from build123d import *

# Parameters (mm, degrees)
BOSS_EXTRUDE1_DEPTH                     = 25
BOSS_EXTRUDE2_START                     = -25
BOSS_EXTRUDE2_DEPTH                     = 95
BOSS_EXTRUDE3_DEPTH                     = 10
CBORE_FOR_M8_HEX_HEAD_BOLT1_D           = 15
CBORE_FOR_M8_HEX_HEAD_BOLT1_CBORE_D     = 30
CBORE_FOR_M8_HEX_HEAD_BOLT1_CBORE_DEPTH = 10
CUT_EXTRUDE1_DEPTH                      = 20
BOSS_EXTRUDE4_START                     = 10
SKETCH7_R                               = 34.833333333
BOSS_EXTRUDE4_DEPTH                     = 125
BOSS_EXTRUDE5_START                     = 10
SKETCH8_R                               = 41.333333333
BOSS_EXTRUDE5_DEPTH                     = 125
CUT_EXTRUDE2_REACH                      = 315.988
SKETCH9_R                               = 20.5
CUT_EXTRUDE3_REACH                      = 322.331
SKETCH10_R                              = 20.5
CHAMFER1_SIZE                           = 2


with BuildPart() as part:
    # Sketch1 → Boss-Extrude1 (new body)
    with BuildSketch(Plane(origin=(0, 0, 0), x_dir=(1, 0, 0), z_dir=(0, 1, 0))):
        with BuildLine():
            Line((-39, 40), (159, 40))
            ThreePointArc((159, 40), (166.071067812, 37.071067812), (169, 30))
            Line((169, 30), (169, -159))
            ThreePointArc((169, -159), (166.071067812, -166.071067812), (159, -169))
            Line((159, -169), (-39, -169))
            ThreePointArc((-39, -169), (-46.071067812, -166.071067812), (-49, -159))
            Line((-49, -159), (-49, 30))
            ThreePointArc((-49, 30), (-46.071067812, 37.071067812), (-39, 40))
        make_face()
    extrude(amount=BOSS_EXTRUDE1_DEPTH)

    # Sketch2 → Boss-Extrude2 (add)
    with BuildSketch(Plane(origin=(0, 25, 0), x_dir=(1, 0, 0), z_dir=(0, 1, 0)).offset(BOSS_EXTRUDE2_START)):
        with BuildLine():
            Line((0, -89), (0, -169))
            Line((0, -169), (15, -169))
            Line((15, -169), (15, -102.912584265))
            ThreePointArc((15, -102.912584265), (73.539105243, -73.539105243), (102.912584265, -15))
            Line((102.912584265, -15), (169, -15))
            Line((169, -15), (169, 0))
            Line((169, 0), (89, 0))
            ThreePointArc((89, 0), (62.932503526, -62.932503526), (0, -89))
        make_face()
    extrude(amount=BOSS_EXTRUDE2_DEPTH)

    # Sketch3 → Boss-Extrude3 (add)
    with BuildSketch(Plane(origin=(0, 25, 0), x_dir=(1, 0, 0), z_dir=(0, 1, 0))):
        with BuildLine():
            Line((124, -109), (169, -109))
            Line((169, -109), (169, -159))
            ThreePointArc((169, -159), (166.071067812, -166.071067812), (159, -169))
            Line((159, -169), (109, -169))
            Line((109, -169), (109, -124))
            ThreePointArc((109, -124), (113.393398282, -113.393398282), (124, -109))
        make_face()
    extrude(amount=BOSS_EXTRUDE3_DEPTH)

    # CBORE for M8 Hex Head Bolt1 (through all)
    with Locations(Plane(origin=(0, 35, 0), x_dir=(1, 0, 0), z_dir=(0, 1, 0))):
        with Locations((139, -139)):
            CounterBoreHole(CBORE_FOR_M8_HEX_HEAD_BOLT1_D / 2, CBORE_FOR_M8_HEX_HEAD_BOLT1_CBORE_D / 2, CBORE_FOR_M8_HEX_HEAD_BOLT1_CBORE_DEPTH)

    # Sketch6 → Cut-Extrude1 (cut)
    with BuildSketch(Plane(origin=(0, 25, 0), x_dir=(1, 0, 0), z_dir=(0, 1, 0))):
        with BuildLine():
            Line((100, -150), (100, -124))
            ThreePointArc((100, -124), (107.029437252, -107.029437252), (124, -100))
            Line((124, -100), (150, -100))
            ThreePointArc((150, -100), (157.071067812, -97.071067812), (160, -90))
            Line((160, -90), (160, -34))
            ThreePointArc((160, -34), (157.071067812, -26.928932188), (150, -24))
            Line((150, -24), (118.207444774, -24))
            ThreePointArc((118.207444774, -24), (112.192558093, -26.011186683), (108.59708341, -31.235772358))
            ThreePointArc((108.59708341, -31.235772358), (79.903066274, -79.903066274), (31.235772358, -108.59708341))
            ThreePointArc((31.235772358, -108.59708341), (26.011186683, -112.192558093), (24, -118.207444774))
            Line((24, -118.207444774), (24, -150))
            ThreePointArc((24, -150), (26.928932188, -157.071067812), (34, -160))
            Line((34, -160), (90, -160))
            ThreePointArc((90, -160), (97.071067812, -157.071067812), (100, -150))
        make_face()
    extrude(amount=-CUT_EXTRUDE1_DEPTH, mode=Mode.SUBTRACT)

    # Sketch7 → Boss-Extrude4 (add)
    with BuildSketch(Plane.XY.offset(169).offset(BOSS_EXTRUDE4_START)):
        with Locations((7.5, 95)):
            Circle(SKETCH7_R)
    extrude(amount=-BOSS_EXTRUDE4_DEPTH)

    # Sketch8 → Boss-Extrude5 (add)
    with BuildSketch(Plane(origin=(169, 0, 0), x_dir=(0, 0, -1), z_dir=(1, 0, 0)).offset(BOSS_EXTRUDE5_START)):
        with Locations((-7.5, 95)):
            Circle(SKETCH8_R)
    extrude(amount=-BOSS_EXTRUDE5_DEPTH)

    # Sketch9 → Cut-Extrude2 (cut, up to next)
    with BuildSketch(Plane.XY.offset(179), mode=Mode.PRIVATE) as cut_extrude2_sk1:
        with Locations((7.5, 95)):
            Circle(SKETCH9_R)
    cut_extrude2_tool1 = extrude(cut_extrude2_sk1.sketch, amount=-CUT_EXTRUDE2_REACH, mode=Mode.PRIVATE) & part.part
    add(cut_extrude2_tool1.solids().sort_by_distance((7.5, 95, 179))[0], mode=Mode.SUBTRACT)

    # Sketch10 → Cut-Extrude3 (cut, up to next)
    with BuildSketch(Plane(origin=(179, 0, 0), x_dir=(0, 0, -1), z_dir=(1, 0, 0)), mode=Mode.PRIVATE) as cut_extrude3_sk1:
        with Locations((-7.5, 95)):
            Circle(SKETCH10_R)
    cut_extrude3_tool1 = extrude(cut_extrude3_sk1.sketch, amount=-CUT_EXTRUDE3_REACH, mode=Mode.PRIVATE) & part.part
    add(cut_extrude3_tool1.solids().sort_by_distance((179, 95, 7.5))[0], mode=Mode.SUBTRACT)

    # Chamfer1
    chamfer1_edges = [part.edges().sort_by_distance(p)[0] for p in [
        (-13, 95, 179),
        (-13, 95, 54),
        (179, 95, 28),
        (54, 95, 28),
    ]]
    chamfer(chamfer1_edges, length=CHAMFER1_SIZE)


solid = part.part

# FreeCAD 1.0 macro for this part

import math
import FreeCAD as App
import Part
import Sketcher
from FreeCAD import Vector


def edges_at(feature, points):
    """Names of the edges that pass closest to the given points."""
    edges = feature.Shape.Edges
    near = lambda p: min(range(len(edges)), key=lambda i: edges[i].distToShape(Part.Vertex(*p))[0])
    return sorted({f"Edge{near(p) + 1}" for p in points})

doc = App.newDocument("Part")
params = doc.addObject("Spreadsheet::Sheet", "Params")
for row, (alias, value) in enumerate([
    ("sketch1_radius", "10 mm"),
    ("sketch1_width", "198 mm"),
    ("sketch1_height", "189 mm"),
    ("pad1_length", "25 mm"),
    ("sketch2_radius", "104 mm"),
    ("sketch2_radius2", "89 mm"),
    ("sketch2_width", "15 mm"),
    ("sketch2_width2", "80 mm"),
    ("pad2_length", "95 mm"),
    ("sketch3_radius", "15 mm"),
    ("sketch3_radius2", "10 mm"),
    ("sketch3_width", "45 mm"),
    ("pad3_length", "10 mm"),
    ("sketch4_diameter", "15 mm"),
    ("hole_diameter", "15 mm"),
    ("hole_cbore_diameter", "30 mm"),
    ("hole_cbore_depth", "10 mm"),
    ("sketch5_radius", "24 mm"),
    ("sketch5_radius2", "10 mm"),
    ("sketch5_radius3", "113 mm"),
    ("sketch5_width", "26 mm"),
    ("sketch5_width2", "56 mm"),
    ("pocket1_length", "20 mm"),
    ("pad4_length", "125 mm"),
    ("pad5_length", "125 mm"),
    ("sketch8_diameter", "41 mm"),
    ("sketch9_diameter", "41 mm"),
    ("chamfer_size", "2 mm"),
], start=1):
    params.set(f"A{row}", alias)
    params.set(f"B{row}", "=" + value)
    params.setAlias(f"B{row}", alias)

body = doc.addObject("PartDesign::Body", "Body")

# Sketch on XZ plane
sketch1 = doc.addObject("Sketcher::SketchObject", "Sketch")
body.addObject(sketch1)
sketch1.AttachmentSupport = (doc.XZ_Plane, [""])
sketch1.MapMode = "FlatFace"
sketch1.addGeometry([
    Part.LineSegment(Vector(159, -40, 0), Vector(-39, -40, 0)),  # 0
    Part.ArcOfCircle(Part.Circle(Vector(-39, -30, 0), Vector(0, 0, 1), 10), math.radians(180), math.radians(270)),  # 1
    Part.LineSegment(Vector(-49, -30, 0), Vector(-49, 159, 0)),  # 2
    Part.ArcOfCircle(Part.Circle(Vector(-39, 159, 0), Vector(0, 0, 1), 10), math.radians(90), math.radians(180)),  # 3
    Part.LineSegment(Vector(-39, 169, 0), Vector(159, 169, 0)),  # 4
    Part.ArcOfCircle(Part.Circle(Vector(159, 159, 0), Vector(0, 0, 1), 10), math.radians(0), math.radians(90)),  # 5
    Part.LineSegment(Vector(169, 159, 0), Vector(169, -30, 0)),  # 6
    Part.ArcOfCircle(Part.Circle(Vector(159, -30, 0), Vector(0, 0, 1), 10), math.radians(-90), math.radians(0)),  # 7
], False)
sketch1.addConstraint([
    Sketcher.Constraint("Tangent", 0, 2, 1, 2),
    Sketcher.Constraint("Tangent", 1, 1, 2, 1),
    Sketcher.Constraint("Tangent", 2, 2, 3, 2),
    Sketcher.Constraint("Tangent", 3, 1, 4, 1),
    Sketcher.Constraint("Tangent", 4, 2, 5, 2),
    Sketcher.Constraint("Tangent", 5, 1, 6, 1),
    Sketcher.Constraint("Tangent", 6, 2, 7, 2),
    Sketcher.Constraint("Tangent", 7, 1, 0, 1),
    Sketcher.Constraint("Horizontal", 0),
    Sketcher.Constraint("Vertical", 2),
    Sketcher.Constraint("Horizontal", 4),
    Sketcher.Constraint("Vertical", 6),
    Sketcher.Constraint("Equal", 1, 3),
    Sketcher.Constraint("Equal", 3, 5),
    Sketcher.Constraint("Equal", 5, 7),
    Sketcher.Constraint("Radius", 1, 10.0),
    Sketcher.Constraint("DistanceX", 0, 2, 0, 1, 198.0),
    Sketcher.Constraint("DistanceY", 2, 1, 2, 2, 189.0),
    Sketcher.Constraint("DistanceX", 1, 3, -1, 1, 39.0),
    Sketcher.Constraint("DistanceY", 1, 3, -1, 1, 30.0),
])
sketch1.setExpression("Constraints[15]", "Params.sketch1_radius")
sketch1.setExpression("Constraints[16]", "Params.sketch1_width")
sketch1.setExpression("Constraints[17]", "Params.sketch1_height")
pad1 = doc.addObject("PartDesign::Pad", "Pad")
body.addObject(pad1)
pad1.Profile = sketch1
pad1.setExpression("Length", "Params.pad1_length")
pad1.Reversed = True

# Sketch on XZ plane
sketch2 = doc.addObject("Sketcher::SketchObject", "Sketch001")
body.addObject(sketch2)
sketch2.AttachmentSupport = (doc.XZ_Plane, [""])
sketch2.MapMode = "FlatFace"
sketch2.addGeometry([
    Part.LineSegment(Vector(0, 89, 0), Vector(0, 169, 0)),  # 0
    Part.LineSegment(Vector(0, 169, 0), Vector(15, 169, 0)),  # 1
    Part.LineSegment(Vector(15, 169, 0), Vector(15, 103, 0)),  # 2
    Part.ArcOfCircle(Part.Circle(Vector(0, 0, 0), Vector(0, 0, 1), 104), math.radians(8), math.radians(82)),  # 3
    Part.LineSegment(Vector(103, 15, 0), Vector(169, 15, 0)),  # 4
    Part.LineSegment(Vector(169, 15, 0), Vector(169, 0, 0)),  # 5
    Part.LineSegment(Vector(169, 0, 0), Vector(89, 0, 0)),  # 6
    Part.ArcOfCircle(Part.Circle(Vector(0, 0, 0), Vector(0, 0, 1), 89), math.radians(0), math.radians(90)),  # 7
], False)
sketch2.addConstraint([
    Sketcher.Constraint("Coincident", 0, 2, 1, 1),
    Sketcher.Constraint("Coincident", 1, 2, 2, 1),
    Sketcher.Constraint("Coincident", 2, 2, 3, 2),
    Sketcher.Constraint("Coincident", 3, 1, 4, 1),
    Sketcher.Constraint("Coincident", 4, 2, 5, 1),
    Sketcher.Constraint("Coincident", 5, 2, 6, 1),
    Sketcher.Constraint("Coincident", 6, 2, 7, 1),
    Sketcher.Constraint("Coincident", 7, 2, 0, 1),
    Sketcher.Constraint("Vertical", 0),
    Sketcher.Constraint("Horizontal", 1),
    Sketcher.Constraint("Vertical", 2),
    Sketcher.Constraint("Horizontal", 4),
    Sketcher.Constraint("Vertical", 5),
    Sketcher.Constraint("Horizontal", 6),
    Sketcher.Constraint("Coincident", 3, 3, -1, 1),
    Sketcher.Constraint("Coincident", 7, 3, -1, 1),
    Sketcher.Constraint("PointOnObject", 0, 2, -2),
    Sketcher.Constraint("PointOnObject", 5, 2, -1),
    Sketcher.Constraint("Equal", 6, 0),
    Sketcher.Constraint("Equal", 4, 2),
    Sketcher.Constraint("Radius", 3, 104.0),
    Sketcher.Constraint("Radius", 7, 89.0),
    Sketcher.Constraint("DistanceX", 1, 1, 1, 2, 15.0),
    Sketcher.Constraint("DistanceX", 6, 2, 6, 1, 80.0),
])
sketch2.setExpression("Constraints[20]", "Params.sketch2_radius")
sketch2.setExpression("Constraints[21]", "Params.sketch2_radius2")
sketch2.setExpression("Constraints[22]", "Params.sketch2_width")
sketch2.setExpression("Constraints[23]", "Params.sketch2_width2")
pad2 = doc.addObject("PartDesign::Pad", "Pad001")
body.addObject(pad2)
pad2.Profile = sketch2
pad2.setExpression("Length", "Params.pad2_length")
pad2.Reversed = True

# Sketch on XZ plane
sketch3 = doc.addObject("Sketcher::SketchObject", "Sketch002")
body.addObject(sketch3)
sketch3.AttachmentSupport = (doc.XZ_Plane, [""])
sketch3.MapMode = "FlatFace"
sketch3.AttachmentOffset = App.Placement(Vector(0, 0, -25), App.Rotation())
sketch3.addGeometry([
    Part.LineSegment(Vector(169, 109, 0), Vector(124, 109, 0)),  # 0
    Part.ArcOfCircle(Part.Circle(Vector(124, 124, 0), Vector(0, 0, 1), 15), math.radians(180), math.radians(270)),  # 1
    Part.LineSegment(Vector(109, 124, 0), Vector(109, 169, 0)),  # 2
    Part.LineSegment(Vector(109, 169, 0), Vector(159, 169, 0)),  # 3
    Part.ArcOfCircle(Part.Circle(Vector(159, 159, 0), Vector(0, 0, 1), 10), math.radians(0), math.radians(90)),  # 4
    Part.LineSegment(Vector(169, 159, 0), Vector(169, 109, 0)),  # 5
], False)
sketch3.addConstraint([
    Sketcher.Constraint("Tangent", 0, 2, 1, 2),
    Sketcher.Constraint("Tangent", 1, 1, 2, 1),
    Sketcher.Constraint("Coincident", 2, 2, 3, 1),
    Sketcher.Constraint("Tangent", 3, 2, 4, 2),
    Sketcher.Constraint("Tangent", 4, 1, 5, 1),
    Sketcher.Constraint("Coincident", 5, 2, 0, 1),
    Sketcher.Constraint("Horizontal", 0),
    Sketcher.Constraint("Vertical", 2),
    Sketcher.Constraint("Horizontal", 3),
    Sketcher.Constraint("Vertical", 5),
    Sketcher.Constraint("Equal", 0, 2),
    Sketcher.Constraint("Radius", 1, 15.0),
    Sketcher.Constraint("Radius", 4, 10.0),
    Sketcher.Constraint("DistanceX", 0, 2, 0, 1, 45.0),
    Sketcher.Constraint("DistanceX", -1, 1, 1, 3, 124.0),
    Sketcher.Constraint("DistanceY", -1, 1, 1, 3, 124.0),
])
sketch3.setExpression("Constraints[11]", "Params.sketch3_radius")
sketch3.setExpression("Constraints[12]", "Params.sketch3_radius2")
sketch3.setExpression("Constraints[13]", "Params.sketch3_width")
pad3 = doc.addObject("PartDesign::Pad", "Pad002")
body.addObject(pad3)
pad3.Profile = sketch3
pad3.setExpression("Length", "Params.pad3_length")
pad3.Reversed = True

# Sketch on XZ plane
sketch4 = doc.addObject("Sketcher::SketchObject", "Sketch003")
body.addObject(sketch4)
sketch4.AttachmentSupport = (doc.XZ_Plane, [""])
sketch4.MapMode = "FlatFace"
sketch4.AttachmentOffset = App.Placement(Vector(0, 0, -35), App.Rotation())
sketch4.addGeometry(Part.Circle(Vector(139, 139, 0), Vector(0, 0, 1), 8), False)
sketch4.addConstraint([
    Sketcher.Constraint("Diameter", 0, 15.0),
    Sketcher.Constraint("DistanceX", -1, 1, 0, 3, 139.0),
    Sketcher.Constraint("DistanceY", -1, 1, 0, 3, 139.0),
])
sketch4.setExpression("Constraints[0]", "Params.sketch4_diameter")
doc.recompute()
hole = doc.addObject("PartDesign::Hole", "Hole")
body.addObject(hole)
hole.Profile = sketch4
hole.ThreadType = "None"
hole.setExpression("Diameter", "Params.hole_diameter")
hole.DepthType = "ThroughAll"
hole.HoleCutType = "Counterbore"
hole.setExpression("HoleCutDiameter", "Params.hole_cbore_diameter")
hole.setExpression("HoleCutDepth", "Params.hole_cbore_depth")
hole.Reversed = True

# Sketch on XZ plane
sketch5 = doc.addObject("Sketcher::SketchObject", "Sketch004")
body.addObject(sketch5)
sketch5.AttachmentSupport = (doc.XZ_Plane, [""])
sketch5.MapMode = "FlatFace"
sketch5.AttachmentOffset = App.Placement(Vector(0, 0, -25), App.Rotation())
sketch5.addGeometry([
    Part.LineSegment(Vector(100, 150, 0), Vector(100, 124, 0)),  # 0
    Part.ArcOfCircle(Part.Circle(Vector(124, 124, 0), Vector(0, 0, 1), 24), math.radians(-180), math.radians(-90)),  # 1
    Part.LineSegment(Vector(124, 100, 0), Vector(150, 100, 0)),  # 2
    Part.ArcOfCircle(Part.Circle(Vector(150, 90, 0), Vector(0, 0, 1), 10), math.radians(0), math.radians(90)),  # 3
    Part.LineSegment(Vector(160, 90, 0), Vector(160, 34, 0)),  # 4
    Part.ArcOfCircle(Part.Circle(Vector(150, 34, 0), Vector(0, 0, 1), 10), math.radians(-90), math.radians(0)),  # 5
    Part.LineSegment(Vector(150, 24, 0), Vector(118, 24, 0)),  # 6
    Part.ArcOfCircle(Part.Circle(Vector(118, 34, 0), Vector(0, 0, 1), 10), math.radians(-164), math.radians(-90)),  # 7
    Part.ArcOfCircle(Part.Circle(Vector(0, 0, 0), Vector(0, 0, 1), 113), math.radians(16), math.radians(74)),  # 8
    Part.ArcOfCircle(Part.Circle(Vector(34, 118, 0), Vector(0, 0, 1), 10), math.radians(180), math.radians(254)),  # 9
    Part.LineSegment(Vector(24, 118, 0), Vector(24, 150, 0)),  # 10
    Part.ArcOfCircle(Part.Circle(Vector(34, 150, 0), Vector(0, 0, 1), 10), math.radians(90), math.radians(180)),  # 11
    Part.LineSegment(Vector(34, 160, 0), Vector(90, 160, 0)),  # 12
    Part.ArcOfCircle(Part.Circle(Vector(90, 150, 0), Vector(0, 0, 1), 10), math.radians(0), math.radians(90)),  # 13
], False)
sketch5.addConstraint([
    Sketcher.Constraint("Tangent", 0, 2, 1, 1),
    Sketcher.Constraint("Tangent", 1, 2, 2, 1),
    Sketcher.Constraint("Tangent", 2, 2, 3, 2),
    Sketcher.Constraint("Tangent", 3, 1, 4, 1),
    Sketcher.Constraint("Tangent", 4, 2, 5, 2),
    Sketcher.Constraint("Tangent", 5, 1, 6, 1),
    Sketcher.Constraint("Tangent", 6, 2, 7, 2),
    Sketcher.Constraint("Tangent", 7, 1, 8, 1),
    Sketcher.Constraint("Tangent", 8, 2, 9, 2),
    Sketcher.Constraint("Tangent", 9, 1, 10, 1),
    Sketcher.Constraint("Tangent", 10, 2, 11, 2),
    Sketcher.Constraint("Tangent", 11, 1, 12, 1),
    Sketcher.Constraint("Tangent", 12, 2, 13, 2),
    Sketcher.Constraint("Tangent", 13, 1, 0, 1),
    Sketcher.Constraint("Vertical", 0),
    Sketcher.Constraint("Horizontal", 2),
    Sketcher.Constraint("Vertical", 4),
    Sketcher.Constraint("Horizontal", 6),
    Sketcher.Constraint("Vertical", 10),
    Sketcher.Constraint("Horizontal", 12),
    Sketcher.Constraint("Coincident", 8, 3, -1, 1),
    Sketcher.Constraint("Equal", 3, 5),
    Sketcher.Constraint("Equal", 5, 7),
    Sketcher.Constraint("Equal", 7, 9),
    Sketcher.Constraint("Equal", 9, 11),
    Sketcher.Constraint("Equal", 11, 13),
    Sketcher.Constraint("Equal", 2, 0),
    Sketcher.Constraint("Equal", 12, 4),
    Sketcher.Constraint("Equal", 6, 10),
    Sketcher.Constraint("Radius", 1, 24.0),
    Sketcher.Constraint("Radius", 3, 10.0),
    Sketcher.Constraint("Radius", 8, 113.0),
    Sketcher.Constraint("DistanceX", 2, 1, 2, 2, 26.0),
    Sketcher.Constraint("DistanceX", 12, 1, 12, 2, 56.0),
    Sketcher.Constraint("DistanceX", -1, 1, 1, 3, 124.0),
])
sketch5.setExpression("Constraints[29]", "Params.sketch5_radius")
sketch5.setExpression("Constraints[30]", "Params.sketch5_radius2")
sketch5.setExpression("Constraints[31]", "Params.sketch5_radius3")
sketch5.setExpression("Constraints[32]", "Params.sketch5_width")
sketch5.setExpression("Constraints[33]", "Params.sketch5_width2")
pocket1 = doc.addObject("PartDesign::Pocket", "Pocket")
body.addObject(pocket1)
pocket1.Profile = sketch5
pocket1.setExpression("Length", "Params.pocket1_length")
pocket1.Reversed = True

# Sketch on XY plane
sketch6 = doc.addObject("Sketcher::SketchObject", "Sketch005")
body.addObject(sketch6)
sketch6.AttachmentSupport = (doc.XY_Plane, [""])
sketch6.MapMode = "FlatFace"
sketch6.AttachmentOffset = App.Placement(Vector(0, 0, 179), App.Rotation())
sketch6.addGeometry(Part.Circle(Vector(8, 95, 0), Vector(0, 0, 1), 35), False)
sketch6.addConstraint([
    Sketcher.Constraint("DistanceY", -1, 1, 0, 3, 95.0),
    Sketcher.Constraint("DistanceX", -1, 1, 0, 3, 7.5),
    Sketcher.Constraint("Diameter", 0, 69.666667),
])
pad4 = doc.addObject("PartDesign::Pad", "Pad003")
body.addObject(pad4)
pad4.Profile = sketch6
pad4.setExpression("Length", "Params.pad4_length")
pad4.Reversed = True

# Sketch on YZ plane
sketch7 = doc.addObject("Sketcher::SketchObject", "Sketch006")
body.addObject(sketch7)
sketch7.AttachmentSupport = (doc.YZ_Plane, [""])
sketch7.MapMode = "FlatFace"
sketch7.AttachmentOffset = App.Placement(Vector(0, 0, 179), App.Rotation())
sketch7.addGeometry(Part.Circle(Vector(95, 8, 0), Vector(0, 0, 1), 41), False)
sketch7.addConstraint([
    Sketcher.Constraint("DistanceX", -1, 1, 0, 3, 95.0),
    Sketcher.Constraint("DistanceY", -1, 1, 0, 3, 7.5),
    Sketcher.Constraint("Diameter", 0, 82.666667),
])
pad5 = doc.addObject("PartDesign::Pad", "Pad004")
body.addObject(pad5)
pad5.Profile = sketch7
pad5.setExpression("Length", "Params.pad5_length")
pad5.Reversed = True

# Sketch on XY plane
sketch8 = doc.addObject("Sketcher::SketchObject", "Sketch007")
body.addObject(sketch8)
sketch8.AttachmentSupport = (doc.XY_Plane, [""])
sketch8.MapMode = "FlatFace"
sketch8.AttachmentOffset = App.Placement(Vector(0, 0, 179), App.Rotation())
sketch8.addGeometry(Part.Circle(Vector(8, 95, 0), Vector(0, 0, 1), 20), False)
sketch8.addConstraint([
    Sketcher.Constraint("Diameter", 0, 41.0),
    Sketcher.Constraint("DistanceY", -1, 1, 0, 3, 95.0),
    Sketcher.Constraint("DistanceX", -1, 1, 0, 3, 7.5),
])
sketch8.setExpression("Constraints[0]", "Params.sketch8_diameter")
pocket2 = doc.addObject("PartDesign::Pocket", "Pocket001")
body.addObject(pocket2)
pocket2.Profile = sketch8
pocket2.Type = "UpToFirst"

# Sketch on YZ plane
sketch9 = doc.addObject("Sketcher::SketchObject", "Sketch008")
body.addObject(sketch9)
sketch9.AttachmentSupport = (doc.YZ_Plane, [""])
sketch9.MapMode = "FlatFace"
sketch9.AttachmentOffset = App.Placement(Vector(0, 0, 179), App.Rotation())
sketch9.addGeometry(Part.Circle(Vector(95, 8, 0), Vector(0, 0, 1), 20), False)
sketch9.addConstraint([
    Sketcher.Constraint("Diameter", 0, 41.0),
    Sketcher.Constraint("DistanceX", -1, 1, 0, 3, 95.0),
    Sketcher.Constraint("DistanceY", -1, 1, 0, 3, 7.5),
])
sketch9.setExpression("Constraints[0]", "Params.sketch9_diameter")
pocket3 = doc.addObject("PartDesign::Pocket", "Pocket002")
body.addObject(pocket3)
pocket3.Profile = sketch9
pocket3.Type = "UpToFirst"
doc.recompute()

chamfer = doc.addObject("PartDesign::Chamfer", "Chamfer")
body.addObject(chamfer)
chamfer.Base = (pocket3, edges_at(pocket3, [
    (-13, 95, 179),
    (-13, 95, 54),
    (179, 95, 28),
    (54, 95, 28),
]))
chamfer.setExpression("Size", "Params.chamfer_size")

doc.recompute()
